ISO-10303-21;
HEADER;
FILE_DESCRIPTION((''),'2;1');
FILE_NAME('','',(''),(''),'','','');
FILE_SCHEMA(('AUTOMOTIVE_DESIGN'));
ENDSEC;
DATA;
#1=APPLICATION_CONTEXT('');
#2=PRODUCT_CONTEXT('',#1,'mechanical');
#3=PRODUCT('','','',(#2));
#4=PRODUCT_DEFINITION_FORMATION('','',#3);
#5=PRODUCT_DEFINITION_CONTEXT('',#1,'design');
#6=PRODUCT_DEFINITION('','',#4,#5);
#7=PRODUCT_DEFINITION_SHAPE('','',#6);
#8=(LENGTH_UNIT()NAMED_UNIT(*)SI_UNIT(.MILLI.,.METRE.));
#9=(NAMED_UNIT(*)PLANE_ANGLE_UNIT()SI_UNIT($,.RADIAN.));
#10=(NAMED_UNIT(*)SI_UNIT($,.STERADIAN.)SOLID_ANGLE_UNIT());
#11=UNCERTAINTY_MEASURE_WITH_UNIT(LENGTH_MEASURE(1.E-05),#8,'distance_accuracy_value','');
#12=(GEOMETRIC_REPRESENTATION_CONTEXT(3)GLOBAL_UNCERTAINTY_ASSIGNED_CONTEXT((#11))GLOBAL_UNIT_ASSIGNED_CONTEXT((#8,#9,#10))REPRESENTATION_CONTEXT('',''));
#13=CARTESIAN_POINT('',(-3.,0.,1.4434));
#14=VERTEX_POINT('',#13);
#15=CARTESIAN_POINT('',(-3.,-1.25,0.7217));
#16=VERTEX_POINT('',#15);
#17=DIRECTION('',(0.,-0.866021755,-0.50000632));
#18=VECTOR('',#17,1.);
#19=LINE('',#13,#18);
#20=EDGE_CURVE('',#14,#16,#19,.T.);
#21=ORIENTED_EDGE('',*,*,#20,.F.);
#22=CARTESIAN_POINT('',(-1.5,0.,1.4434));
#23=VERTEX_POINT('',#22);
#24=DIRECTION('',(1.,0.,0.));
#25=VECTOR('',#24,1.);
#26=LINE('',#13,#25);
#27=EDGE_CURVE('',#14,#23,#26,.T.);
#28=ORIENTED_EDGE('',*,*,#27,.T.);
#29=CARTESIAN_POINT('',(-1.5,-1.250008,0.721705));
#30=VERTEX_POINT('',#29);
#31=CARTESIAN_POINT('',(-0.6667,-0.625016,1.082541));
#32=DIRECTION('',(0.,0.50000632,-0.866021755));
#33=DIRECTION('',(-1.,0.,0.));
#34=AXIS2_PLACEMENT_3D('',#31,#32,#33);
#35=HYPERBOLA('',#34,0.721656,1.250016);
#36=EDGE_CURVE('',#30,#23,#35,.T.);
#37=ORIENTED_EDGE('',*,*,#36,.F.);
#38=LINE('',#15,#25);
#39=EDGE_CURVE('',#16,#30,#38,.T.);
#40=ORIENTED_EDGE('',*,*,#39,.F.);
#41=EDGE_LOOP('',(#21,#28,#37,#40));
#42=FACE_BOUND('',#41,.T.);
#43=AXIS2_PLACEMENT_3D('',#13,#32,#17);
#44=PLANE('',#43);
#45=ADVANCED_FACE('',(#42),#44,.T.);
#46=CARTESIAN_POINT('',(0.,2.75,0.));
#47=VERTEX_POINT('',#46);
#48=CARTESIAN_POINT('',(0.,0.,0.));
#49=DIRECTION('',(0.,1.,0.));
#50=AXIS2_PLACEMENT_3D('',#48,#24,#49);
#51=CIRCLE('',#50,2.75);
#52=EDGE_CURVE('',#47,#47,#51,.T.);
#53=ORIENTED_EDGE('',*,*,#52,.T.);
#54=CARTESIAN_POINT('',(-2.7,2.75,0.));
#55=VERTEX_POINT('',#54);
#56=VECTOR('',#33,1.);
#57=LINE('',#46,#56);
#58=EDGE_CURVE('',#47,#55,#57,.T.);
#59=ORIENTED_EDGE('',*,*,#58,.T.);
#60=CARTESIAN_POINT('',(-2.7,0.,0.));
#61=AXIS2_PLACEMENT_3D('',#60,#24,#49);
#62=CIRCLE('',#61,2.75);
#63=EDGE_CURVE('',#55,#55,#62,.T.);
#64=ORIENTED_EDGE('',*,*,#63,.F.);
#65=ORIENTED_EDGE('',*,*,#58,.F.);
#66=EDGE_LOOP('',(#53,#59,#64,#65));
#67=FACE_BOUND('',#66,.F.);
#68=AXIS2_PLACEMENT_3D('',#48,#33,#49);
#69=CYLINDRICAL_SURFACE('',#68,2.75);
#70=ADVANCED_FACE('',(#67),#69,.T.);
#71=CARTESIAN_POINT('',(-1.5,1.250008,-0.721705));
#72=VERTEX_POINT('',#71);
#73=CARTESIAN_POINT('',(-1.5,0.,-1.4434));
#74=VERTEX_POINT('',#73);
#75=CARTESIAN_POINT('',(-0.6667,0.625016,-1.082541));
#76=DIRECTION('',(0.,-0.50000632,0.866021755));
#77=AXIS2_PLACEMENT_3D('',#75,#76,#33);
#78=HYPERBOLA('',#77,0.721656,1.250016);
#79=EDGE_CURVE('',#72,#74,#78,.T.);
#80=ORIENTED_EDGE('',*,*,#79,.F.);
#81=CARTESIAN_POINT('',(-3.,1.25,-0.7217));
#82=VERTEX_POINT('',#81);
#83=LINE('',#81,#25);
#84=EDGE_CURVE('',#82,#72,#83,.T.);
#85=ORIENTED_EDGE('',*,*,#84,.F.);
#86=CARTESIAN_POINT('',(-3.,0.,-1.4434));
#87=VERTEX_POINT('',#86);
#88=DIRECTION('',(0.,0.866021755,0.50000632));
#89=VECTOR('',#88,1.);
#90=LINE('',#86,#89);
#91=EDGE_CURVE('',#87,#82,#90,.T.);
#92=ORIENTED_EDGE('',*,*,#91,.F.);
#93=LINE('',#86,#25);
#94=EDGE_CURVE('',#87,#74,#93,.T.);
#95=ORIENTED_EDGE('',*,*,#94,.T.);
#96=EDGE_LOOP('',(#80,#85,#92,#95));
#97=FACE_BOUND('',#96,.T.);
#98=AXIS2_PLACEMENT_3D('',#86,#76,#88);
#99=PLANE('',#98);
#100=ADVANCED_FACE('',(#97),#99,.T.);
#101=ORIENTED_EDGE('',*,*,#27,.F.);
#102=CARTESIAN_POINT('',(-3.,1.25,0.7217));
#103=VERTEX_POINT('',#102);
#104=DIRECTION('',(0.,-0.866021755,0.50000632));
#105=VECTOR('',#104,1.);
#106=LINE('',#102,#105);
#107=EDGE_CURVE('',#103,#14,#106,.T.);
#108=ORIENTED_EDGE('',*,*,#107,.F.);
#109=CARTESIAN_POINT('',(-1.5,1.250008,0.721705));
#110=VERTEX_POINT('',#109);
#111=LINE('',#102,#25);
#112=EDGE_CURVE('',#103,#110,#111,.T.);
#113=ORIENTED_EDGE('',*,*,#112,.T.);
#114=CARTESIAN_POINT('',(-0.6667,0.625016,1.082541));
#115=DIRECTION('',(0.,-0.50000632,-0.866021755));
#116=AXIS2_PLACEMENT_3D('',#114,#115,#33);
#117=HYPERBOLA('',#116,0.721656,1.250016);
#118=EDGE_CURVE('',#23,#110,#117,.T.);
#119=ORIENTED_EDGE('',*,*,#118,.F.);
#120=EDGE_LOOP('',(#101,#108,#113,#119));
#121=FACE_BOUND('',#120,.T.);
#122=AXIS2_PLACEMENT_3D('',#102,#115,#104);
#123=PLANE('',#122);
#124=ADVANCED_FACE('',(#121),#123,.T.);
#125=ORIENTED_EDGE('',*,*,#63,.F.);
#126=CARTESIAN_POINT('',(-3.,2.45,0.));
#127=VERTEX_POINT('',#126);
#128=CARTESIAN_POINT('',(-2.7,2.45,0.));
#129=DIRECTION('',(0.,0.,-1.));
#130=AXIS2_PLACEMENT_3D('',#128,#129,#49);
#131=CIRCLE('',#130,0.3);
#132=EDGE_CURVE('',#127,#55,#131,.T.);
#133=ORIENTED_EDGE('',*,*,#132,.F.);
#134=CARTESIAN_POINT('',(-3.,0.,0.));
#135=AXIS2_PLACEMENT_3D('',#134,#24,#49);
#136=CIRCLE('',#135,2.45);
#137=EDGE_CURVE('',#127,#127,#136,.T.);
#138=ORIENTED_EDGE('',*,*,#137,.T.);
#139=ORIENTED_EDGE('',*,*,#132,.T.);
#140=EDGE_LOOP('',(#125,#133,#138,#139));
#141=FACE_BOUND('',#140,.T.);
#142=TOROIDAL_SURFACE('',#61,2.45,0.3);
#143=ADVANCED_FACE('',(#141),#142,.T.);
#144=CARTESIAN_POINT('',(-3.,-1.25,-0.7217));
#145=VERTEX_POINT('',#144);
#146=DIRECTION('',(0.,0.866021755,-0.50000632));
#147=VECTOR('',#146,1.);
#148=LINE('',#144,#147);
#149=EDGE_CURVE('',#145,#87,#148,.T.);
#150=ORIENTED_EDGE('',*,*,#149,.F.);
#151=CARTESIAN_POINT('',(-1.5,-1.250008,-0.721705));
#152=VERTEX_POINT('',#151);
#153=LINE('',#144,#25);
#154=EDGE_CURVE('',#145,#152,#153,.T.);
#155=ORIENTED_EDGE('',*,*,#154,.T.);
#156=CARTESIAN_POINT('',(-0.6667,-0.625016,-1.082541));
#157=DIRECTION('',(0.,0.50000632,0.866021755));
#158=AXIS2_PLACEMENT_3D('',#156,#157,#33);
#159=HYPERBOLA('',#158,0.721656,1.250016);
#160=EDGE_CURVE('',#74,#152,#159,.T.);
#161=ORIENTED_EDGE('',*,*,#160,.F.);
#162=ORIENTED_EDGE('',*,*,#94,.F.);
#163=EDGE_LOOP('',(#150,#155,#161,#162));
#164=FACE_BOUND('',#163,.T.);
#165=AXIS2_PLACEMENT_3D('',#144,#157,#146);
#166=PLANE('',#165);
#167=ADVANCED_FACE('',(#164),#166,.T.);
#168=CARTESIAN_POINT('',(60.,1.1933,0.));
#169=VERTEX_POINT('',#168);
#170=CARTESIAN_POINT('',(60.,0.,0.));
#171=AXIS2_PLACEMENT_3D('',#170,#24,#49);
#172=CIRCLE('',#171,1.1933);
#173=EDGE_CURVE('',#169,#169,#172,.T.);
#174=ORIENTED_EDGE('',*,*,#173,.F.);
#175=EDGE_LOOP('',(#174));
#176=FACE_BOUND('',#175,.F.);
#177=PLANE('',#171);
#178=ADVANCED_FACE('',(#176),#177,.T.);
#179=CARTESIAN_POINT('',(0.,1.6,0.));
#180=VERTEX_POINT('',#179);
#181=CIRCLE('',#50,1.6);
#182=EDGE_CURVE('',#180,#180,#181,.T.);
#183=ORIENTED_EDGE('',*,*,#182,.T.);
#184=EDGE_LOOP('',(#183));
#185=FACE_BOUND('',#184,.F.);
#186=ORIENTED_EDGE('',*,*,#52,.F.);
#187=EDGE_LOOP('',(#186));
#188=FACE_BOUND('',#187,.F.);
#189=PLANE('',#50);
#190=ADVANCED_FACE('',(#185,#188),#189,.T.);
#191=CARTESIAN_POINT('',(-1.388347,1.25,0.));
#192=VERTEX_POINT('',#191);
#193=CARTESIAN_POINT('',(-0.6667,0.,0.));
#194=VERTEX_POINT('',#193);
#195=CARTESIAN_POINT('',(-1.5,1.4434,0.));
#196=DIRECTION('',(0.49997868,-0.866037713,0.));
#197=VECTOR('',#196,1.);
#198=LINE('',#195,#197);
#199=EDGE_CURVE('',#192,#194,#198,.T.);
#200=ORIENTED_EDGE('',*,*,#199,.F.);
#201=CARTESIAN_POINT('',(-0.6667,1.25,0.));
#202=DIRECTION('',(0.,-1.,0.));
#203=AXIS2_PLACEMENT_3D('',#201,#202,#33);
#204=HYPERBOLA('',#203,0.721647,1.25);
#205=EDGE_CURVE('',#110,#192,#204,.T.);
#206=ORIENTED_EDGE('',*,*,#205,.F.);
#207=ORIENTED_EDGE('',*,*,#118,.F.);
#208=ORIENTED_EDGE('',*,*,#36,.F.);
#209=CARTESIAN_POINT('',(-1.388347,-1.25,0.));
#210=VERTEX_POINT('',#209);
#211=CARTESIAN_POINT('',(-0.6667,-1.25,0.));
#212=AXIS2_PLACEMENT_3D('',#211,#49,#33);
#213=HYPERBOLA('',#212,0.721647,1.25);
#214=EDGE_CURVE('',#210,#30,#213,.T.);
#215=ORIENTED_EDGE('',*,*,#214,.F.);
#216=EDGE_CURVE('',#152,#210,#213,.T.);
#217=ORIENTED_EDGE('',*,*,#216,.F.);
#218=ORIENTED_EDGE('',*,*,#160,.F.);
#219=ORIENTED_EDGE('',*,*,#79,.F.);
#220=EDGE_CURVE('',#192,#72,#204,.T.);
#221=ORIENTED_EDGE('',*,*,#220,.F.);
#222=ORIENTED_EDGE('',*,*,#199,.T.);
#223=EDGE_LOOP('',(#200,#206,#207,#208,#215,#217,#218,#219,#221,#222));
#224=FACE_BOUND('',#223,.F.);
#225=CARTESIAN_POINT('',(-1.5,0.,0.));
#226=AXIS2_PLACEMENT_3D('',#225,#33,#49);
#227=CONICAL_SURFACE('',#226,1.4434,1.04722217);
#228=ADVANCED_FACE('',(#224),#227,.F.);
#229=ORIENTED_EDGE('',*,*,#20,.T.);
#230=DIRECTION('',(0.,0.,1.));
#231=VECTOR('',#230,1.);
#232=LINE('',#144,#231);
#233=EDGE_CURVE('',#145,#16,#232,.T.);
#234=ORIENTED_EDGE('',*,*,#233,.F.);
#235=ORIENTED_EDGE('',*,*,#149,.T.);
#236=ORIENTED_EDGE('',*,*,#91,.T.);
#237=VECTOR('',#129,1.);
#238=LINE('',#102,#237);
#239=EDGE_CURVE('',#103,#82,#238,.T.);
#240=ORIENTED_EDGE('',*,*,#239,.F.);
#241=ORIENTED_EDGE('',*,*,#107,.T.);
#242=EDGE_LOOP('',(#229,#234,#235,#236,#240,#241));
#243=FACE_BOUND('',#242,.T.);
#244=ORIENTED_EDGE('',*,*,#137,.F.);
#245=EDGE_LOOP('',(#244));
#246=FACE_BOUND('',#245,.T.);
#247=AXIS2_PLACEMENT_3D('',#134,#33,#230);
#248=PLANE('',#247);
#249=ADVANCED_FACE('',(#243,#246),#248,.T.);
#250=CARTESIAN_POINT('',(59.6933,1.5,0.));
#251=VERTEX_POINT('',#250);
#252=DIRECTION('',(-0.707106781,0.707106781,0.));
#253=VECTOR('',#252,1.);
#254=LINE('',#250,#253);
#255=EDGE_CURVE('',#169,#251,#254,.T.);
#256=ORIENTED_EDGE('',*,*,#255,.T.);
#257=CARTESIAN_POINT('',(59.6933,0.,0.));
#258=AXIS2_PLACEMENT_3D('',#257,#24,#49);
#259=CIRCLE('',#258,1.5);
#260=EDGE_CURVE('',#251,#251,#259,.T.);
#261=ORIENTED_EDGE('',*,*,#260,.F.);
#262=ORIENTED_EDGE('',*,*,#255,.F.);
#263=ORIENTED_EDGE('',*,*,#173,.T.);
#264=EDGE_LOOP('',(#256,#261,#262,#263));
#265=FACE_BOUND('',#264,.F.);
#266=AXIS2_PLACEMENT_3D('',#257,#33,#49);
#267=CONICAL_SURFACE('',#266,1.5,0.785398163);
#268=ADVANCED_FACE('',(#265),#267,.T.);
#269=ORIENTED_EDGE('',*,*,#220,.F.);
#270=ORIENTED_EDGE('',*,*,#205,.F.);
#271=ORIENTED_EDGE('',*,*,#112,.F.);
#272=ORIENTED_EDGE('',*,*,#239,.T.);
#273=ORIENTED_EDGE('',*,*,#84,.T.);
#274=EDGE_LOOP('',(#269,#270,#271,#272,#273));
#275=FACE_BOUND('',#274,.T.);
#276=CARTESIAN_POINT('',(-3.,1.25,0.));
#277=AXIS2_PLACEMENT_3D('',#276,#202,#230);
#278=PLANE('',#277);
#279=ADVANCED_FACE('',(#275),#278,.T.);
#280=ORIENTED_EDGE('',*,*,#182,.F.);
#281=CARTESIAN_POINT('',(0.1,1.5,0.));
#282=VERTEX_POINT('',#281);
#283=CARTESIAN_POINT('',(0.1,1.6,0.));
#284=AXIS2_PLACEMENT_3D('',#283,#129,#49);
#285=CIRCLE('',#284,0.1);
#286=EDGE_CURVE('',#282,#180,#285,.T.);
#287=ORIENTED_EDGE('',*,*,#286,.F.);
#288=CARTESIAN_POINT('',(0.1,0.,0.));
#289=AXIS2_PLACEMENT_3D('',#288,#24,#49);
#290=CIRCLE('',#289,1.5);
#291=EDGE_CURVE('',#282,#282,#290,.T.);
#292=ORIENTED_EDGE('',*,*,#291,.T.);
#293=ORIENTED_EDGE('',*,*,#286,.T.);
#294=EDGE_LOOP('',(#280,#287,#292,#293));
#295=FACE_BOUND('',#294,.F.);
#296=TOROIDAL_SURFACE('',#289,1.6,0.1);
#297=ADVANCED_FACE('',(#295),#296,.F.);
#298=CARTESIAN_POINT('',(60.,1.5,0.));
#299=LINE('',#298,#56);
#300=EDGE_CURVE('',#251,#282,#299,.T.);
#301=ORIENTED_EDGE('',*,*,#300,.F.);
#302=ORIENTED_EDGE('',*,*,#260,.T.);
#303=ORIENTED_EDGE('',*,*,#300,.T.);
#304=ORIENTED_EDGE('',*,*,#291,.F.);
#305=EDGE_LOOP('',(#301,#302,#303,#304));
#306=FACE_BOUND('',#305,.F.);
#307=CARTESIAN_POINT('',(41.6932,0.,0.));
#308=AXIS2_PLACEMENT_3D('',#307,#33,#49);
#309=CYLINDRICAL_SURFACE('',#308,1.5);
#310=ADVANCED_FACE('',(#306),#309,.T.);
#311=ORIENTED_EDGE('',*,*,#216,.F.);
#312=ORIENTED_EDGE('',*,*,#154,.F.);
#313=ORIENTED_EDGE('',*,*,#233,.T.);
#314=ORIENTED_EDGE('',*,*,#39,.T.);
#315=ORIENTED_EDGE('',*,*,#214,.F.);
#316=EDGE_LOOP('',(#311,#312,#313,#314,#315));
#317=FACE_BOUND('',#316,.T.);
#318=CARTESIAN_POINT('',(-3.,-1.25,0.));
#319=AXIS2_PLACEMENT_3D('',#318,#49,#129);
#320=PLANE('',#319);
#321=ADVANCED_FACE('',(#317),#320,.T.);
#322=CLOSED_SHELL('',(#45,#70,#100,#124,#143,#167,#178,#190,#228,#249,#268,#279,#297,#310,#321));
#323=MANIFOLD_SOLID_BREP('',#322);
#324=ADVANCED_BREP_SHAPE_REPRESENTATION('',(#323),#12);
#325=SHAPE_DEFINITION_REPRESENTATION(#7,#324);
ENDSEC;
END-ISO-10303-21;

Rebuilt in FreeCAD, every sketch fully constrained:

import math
import FreeCAD as App
import Part
import Sketcher

V = App.Vector
Q = App.Units.Quantity


def edges_at(feature, points):
    """Names of the edges that pass closest to the given points."""
    edges = feature.Shape.Edges
    near = lambda p: min(range(len(edges)), key=lambda i: edges[i].distToShape(Part.Vertex(*p))[0])
    return sorted({f"Edge{near(p) + 1}" for p in points})

doc = App.newDocument("Part")
body = doc.addObject("PartDesign::Body", "Body")

# Sketch on XY plane
sketch1 = body.newObject("Sketcher::SketchObject", "Sketch")
sketch1.AttachmentSupport = (doc.getObject("XY_Plane"), [""])
sketch1.MapMode = "FlatFace"
sketch1.addGeometry(Part.LineSegment(V(-1.5, 1.4, 0), V(-0.7, 0, 0)), False)
sketch1.addGeometry(Part.LineSegment(V(-0.7, 0, 0), V(60, 0, 0)), False)
sketch1.addGeometry(Part.LineSegment(V(60, 0, 0), V(60, 1.5, 0)), False)
sketch1.addGeometry(Part.LineSegment(V(60, 1.5, 0), V(0, 1.5, 0)), False)
sketch1.addGeometry(Part.LineSegment(V(0, 1.5, 0), V(0, 2.8, 0)), False)
sketch1.addGeometry(Part.LineSegment(V(0, 2.8, 0), V(-3, 2.8, 0)), False)
sketch1.addGeometry(Part.LineSegment(V(-3, 2.8, 0), V(-3, 1.4, 0)), False)
sketch1.addGeometry(Part.LineSegment(V(-3, 1.4, 0), V(-1.5, 1.4, 0)), False)
sketch1.addConstraint(Sketcher.Constraint("Coincident", 0, 2, 1, 1))
sketch1.addConstraint(Sketcher.Constraint("Coincident", 1, 2, 2, 1))
sketch1.addConstraint(Sketcher.Constraint("Coincident", 2, 2, 3, 1))
sketch1.addConstraint(Sketcher.Constraint("Coincident", 3, 2, 4, 1))
sketch1.addConstraint(Sketcher.Constraint("Coincident", 4, 2, 5, 1))
sketch1.addConstraint(Sketcher.Constraint("Coincident", 5, 2, 6, 1))
sketch1.addConstraint(Sketcher.Constraint("Coincident", 6, 2, 7, 1))
sketch1.addConstraint(Sketcher.Constraint("Coincident", 7, 2, 0, 1))
sketch1.addConstraint(Sketcher.Constraint("Horizontal", 1))
sketch1.addConstraint(Sketcher.Constraint("Vertical", 2))
sketch1.addConstraint(Sketcher.Constraint("Horizontal", 3))
sketch1.addConstraint(Sketcher.Constraint("Vertical", 4))
sketch1.addConstraint(Sketcher.Constraint("Horizontal", 5))
sketch1.addConstraint(Sketcher.Constraint("Vertical", 6))
sketch1.addConstraint(Sketcher.Constraint("Horizontal", 7))
sketch1.addConstraint(Sketcher.Constraint("PointOnObject", 0, 2, -1))
sketch1.addConstraint(Sketcher.Constraint("PointOnObject", 3, 2, -2))
sketch1.addConstraint(Sketcher.Constraint("Equal", 7, 2))
sketch1.addConstraint(Sketcher.Constraint("DistanceX", 3, 2, 3, 1, 60.0))
sketch1.addConstraint(Sketcher.Constraint("DistanceX", 5, 2, 5, 1, 3.0))
sketch1.addConstraint(Sketcher.Constraint("DistanceX", 7, 1, 7, 2, 1.5))
sketch1.addConstraint(Sketcher.Constraint("DistanceY", 4, 1, 4, 2, 1.25))
sketch1.addConstraint(Sketcher.Constraint("DistanceX", 1, 1, 1, 2, 60.6667))
sketch1.addConstraint(Sketcher.Constraint("DistanceY", 6, 2, 6, 1, 1.3066))
revolution = body.newObject("PartDesign::Revolution", "Revolution")
revolution.Profile = sketch1
revolution.ReferenceAxis = (sketch1, ["H_Axis"])
revolution.Angle = 360

# Sketch on YZ plane
sketch2 = body.newObject("Sketcher::SketchObject", "Sketch001")
sketch2.AttachmentSupport = (doc.getObject("YZ_Plane"), [""])
sketch2.MapMode = "FlatFace"
sketch2.AttachmentOffset = App.Placement(V(0, 0, -3), App.Rotation())
sketch2.addGeometry(Part.LineSegment(V(1.2, 0.7, 0), V(0, 1.4, 0)), False)
sketch2.addGeometry(Part.ArcOfCircle(Part.Circle(V(0, 0, 0), V(0, 0, 1), 1.4), math.radians(30), math.radians(90)), False)
sketch2.addGeometry(Part.ArcOfCircle(Part.Circle(V(0, 0, 0), V(0, 0, 1), 1.4), math.radians(90), math.radians(150)), False)
sketch2.addGeometry(Part.LineSegment(V(0, 1.4, 0), V(-1.2, 0.7, 0)), False)
sketch2.addGeometry(Part.ArcOfCircle(Part.Circle(V(0, 0, 0), V(0, 0, 1), 1.4), math.radians(-30), math.radians(30)), False)
sketch2.addGeometry(Part.LineSegment(V(1.2, 0.7, 0), V(1.2, -0.7, 0)), False)
sketch2.addGeometry(Part.LineSegment(V(-1.2, 0.7, 0), V(-1.2, -0.7, 0)), False)
sketch2.addGeometry(Part.ArcOfCircle(Part.Circle(V(0, 0, 0), V(0, 0, 1), 1.4), math.radians(150), math.radians(210)), False)
sketch2.addGeometry(Part.LineSegment(V(-1.2, -0.7, 0), V(0, -1.4, 0)), False)
sketch2.addGeometry(Part.ArcOfCircle(Part.Circle(V(0, 0, 0), V(0, 0, 1), 1.4), math.radians(-150), math.radians(-90)), False)
sketch2.addGeometry(Part.ArcOfCircle(Part.Circle(V(0, 0, 0), V(0, 0, 1), 1.4), math.radians(-90), math.radians(-30)), False)
sketch2.addGeometry(Part.LineSegment(V(0, -1.4, 0), V(1.2, -0.7, 0)), False)
sketch2.addConstraint(Sketcher.Constraint("Coincident", 0, 1, 1, 1))
sketch2.addConstraint(Sketcher.Constraint("Coincident", 1, 2, 0, 2))
sketch2.addConstraint(Sketcher.Constraint("Coincident", 2, 1, 3, 1))
sketch2.addConstraint(Sketcher.Constraint("Coincident", 3, 2, 2, 2))
sketch2.addConstraint(Sketcher.Constraint("Coincident", 4, 1, 5, 2))
sketch2.addConstraint(Sketcher.Constraint("Coincident", 5, 1, 4, 2))
sketch2.addConstraint(Sketcher.Constraint("Coincident", 6, 1, 7, 1))
sketch2.addConstraint(Sketcher.Constraint("Coincident", 7, 2, 6, 2))
sketch2.addConstraint(Sketcher.Constraint("Coincident", 8, 1, 9, 1))
sketch2.addConstraint(Sketcher.Constraint("Coincident", 9, 2, 8, 2))
sketch2.addConstraint(Sketcher.Constraint("Coincident", 10, 1, 11, 1))
sketch2.addConstraint(Sketcher.Constraint("Coincident", 11, 2, 10, 2))
sketch2.addConstraint(Sketcher.Constraint("Vertical", 5))
sketch2.addConstraint(Sketcher.Constraint("Vertical", 6))
sketch2.addConstraint(Sketcher.Constraint("Coincident", 1, 3, -1, 1))
sketch2.addConstraint(Sketcher.Constraint("Coincident", 2, 3, -1, 1))
sketch2.addConstraint(Sketcher.Constraint("Coincident", 4, 3, -1, 1))
sketch2.addConstraint(Sketcher.Constraint("Coincident", 7, 3, -1, 1))
sketch2.addConstraint(Sketcher.Constraint("Coincident", 9, 3, -1, 1))
sketch2.addConstraint(Sketcher.Constraint("Coincident", 10, 3, -1, 1))
sketch2.addConstraint(Sketcher.Constraint("Coincident", 2, 1, 1, 2))
sketch2.addConstraint(Sketcher.Constraint("Coincident", 5, 1, 0, 1))
sketch2.addConstraint(Sketcher.Constraint("Coincident", 6, 1, 3, 2))
sketch2.addConstraint(Sketcher.Constraint("Coincident", 8, 1, 7, 2))
sketch2.addConstraint(Sketcher.Constraint("Coincident", 10, 1, 9, 2))
sketch2.addConstraint(Sketcher.Constraint("PointOnObject", 1, 2, -2))
sketch2.addConstraint(Sketcher.Constraint("PointOnObject", 9, 2, -2))
sketch2.addConstraint(Sketcher.Constraint("Parallel", 0, 8))
sketch2.addConstraint(Sketcher.Constraint("Parallel", 3, 11))
sketch2.addConstraint(Sketcher.Constraint("Angle", 0, Q("149.9996 deg")))
sketch2.addConstraint(Sketcher.Constraint("Radius", 1, 1.4434))
pad1 = body.newObject("PartDesign::Pad", "Pad")
pad1.Profile = sketch2
pad1.Type = "UpToFirst"
doc.recompute()

fillet = body.newObject("PartDesign::Fillet", "Fillet")
fillet.Base = (pad1, edges_at(pad1, [(-3, -2.75, 0)]))
fillet.Radius = 0.3
doc.recompute()

chamfer = body.newObject("PartDesign::Chamfer", "Chamfer")
chamfer.Base = (fillet, edges_at(fillet, [(60, -1.5, 0)]))
chamfer.ChamferType = "Two distances"
chamfer.Size = 0.3067
chamfer.Size2 = 0.3067
doc.recompute()

fillet2 = body.newObject("PartDesign::Fillet", "Fillet001")
fillet2.Base = (chamfer, edges_at(chamfer, [(0, -1.5, 0)]))
fillet2.Radius = 0.1

doc.recompute()
